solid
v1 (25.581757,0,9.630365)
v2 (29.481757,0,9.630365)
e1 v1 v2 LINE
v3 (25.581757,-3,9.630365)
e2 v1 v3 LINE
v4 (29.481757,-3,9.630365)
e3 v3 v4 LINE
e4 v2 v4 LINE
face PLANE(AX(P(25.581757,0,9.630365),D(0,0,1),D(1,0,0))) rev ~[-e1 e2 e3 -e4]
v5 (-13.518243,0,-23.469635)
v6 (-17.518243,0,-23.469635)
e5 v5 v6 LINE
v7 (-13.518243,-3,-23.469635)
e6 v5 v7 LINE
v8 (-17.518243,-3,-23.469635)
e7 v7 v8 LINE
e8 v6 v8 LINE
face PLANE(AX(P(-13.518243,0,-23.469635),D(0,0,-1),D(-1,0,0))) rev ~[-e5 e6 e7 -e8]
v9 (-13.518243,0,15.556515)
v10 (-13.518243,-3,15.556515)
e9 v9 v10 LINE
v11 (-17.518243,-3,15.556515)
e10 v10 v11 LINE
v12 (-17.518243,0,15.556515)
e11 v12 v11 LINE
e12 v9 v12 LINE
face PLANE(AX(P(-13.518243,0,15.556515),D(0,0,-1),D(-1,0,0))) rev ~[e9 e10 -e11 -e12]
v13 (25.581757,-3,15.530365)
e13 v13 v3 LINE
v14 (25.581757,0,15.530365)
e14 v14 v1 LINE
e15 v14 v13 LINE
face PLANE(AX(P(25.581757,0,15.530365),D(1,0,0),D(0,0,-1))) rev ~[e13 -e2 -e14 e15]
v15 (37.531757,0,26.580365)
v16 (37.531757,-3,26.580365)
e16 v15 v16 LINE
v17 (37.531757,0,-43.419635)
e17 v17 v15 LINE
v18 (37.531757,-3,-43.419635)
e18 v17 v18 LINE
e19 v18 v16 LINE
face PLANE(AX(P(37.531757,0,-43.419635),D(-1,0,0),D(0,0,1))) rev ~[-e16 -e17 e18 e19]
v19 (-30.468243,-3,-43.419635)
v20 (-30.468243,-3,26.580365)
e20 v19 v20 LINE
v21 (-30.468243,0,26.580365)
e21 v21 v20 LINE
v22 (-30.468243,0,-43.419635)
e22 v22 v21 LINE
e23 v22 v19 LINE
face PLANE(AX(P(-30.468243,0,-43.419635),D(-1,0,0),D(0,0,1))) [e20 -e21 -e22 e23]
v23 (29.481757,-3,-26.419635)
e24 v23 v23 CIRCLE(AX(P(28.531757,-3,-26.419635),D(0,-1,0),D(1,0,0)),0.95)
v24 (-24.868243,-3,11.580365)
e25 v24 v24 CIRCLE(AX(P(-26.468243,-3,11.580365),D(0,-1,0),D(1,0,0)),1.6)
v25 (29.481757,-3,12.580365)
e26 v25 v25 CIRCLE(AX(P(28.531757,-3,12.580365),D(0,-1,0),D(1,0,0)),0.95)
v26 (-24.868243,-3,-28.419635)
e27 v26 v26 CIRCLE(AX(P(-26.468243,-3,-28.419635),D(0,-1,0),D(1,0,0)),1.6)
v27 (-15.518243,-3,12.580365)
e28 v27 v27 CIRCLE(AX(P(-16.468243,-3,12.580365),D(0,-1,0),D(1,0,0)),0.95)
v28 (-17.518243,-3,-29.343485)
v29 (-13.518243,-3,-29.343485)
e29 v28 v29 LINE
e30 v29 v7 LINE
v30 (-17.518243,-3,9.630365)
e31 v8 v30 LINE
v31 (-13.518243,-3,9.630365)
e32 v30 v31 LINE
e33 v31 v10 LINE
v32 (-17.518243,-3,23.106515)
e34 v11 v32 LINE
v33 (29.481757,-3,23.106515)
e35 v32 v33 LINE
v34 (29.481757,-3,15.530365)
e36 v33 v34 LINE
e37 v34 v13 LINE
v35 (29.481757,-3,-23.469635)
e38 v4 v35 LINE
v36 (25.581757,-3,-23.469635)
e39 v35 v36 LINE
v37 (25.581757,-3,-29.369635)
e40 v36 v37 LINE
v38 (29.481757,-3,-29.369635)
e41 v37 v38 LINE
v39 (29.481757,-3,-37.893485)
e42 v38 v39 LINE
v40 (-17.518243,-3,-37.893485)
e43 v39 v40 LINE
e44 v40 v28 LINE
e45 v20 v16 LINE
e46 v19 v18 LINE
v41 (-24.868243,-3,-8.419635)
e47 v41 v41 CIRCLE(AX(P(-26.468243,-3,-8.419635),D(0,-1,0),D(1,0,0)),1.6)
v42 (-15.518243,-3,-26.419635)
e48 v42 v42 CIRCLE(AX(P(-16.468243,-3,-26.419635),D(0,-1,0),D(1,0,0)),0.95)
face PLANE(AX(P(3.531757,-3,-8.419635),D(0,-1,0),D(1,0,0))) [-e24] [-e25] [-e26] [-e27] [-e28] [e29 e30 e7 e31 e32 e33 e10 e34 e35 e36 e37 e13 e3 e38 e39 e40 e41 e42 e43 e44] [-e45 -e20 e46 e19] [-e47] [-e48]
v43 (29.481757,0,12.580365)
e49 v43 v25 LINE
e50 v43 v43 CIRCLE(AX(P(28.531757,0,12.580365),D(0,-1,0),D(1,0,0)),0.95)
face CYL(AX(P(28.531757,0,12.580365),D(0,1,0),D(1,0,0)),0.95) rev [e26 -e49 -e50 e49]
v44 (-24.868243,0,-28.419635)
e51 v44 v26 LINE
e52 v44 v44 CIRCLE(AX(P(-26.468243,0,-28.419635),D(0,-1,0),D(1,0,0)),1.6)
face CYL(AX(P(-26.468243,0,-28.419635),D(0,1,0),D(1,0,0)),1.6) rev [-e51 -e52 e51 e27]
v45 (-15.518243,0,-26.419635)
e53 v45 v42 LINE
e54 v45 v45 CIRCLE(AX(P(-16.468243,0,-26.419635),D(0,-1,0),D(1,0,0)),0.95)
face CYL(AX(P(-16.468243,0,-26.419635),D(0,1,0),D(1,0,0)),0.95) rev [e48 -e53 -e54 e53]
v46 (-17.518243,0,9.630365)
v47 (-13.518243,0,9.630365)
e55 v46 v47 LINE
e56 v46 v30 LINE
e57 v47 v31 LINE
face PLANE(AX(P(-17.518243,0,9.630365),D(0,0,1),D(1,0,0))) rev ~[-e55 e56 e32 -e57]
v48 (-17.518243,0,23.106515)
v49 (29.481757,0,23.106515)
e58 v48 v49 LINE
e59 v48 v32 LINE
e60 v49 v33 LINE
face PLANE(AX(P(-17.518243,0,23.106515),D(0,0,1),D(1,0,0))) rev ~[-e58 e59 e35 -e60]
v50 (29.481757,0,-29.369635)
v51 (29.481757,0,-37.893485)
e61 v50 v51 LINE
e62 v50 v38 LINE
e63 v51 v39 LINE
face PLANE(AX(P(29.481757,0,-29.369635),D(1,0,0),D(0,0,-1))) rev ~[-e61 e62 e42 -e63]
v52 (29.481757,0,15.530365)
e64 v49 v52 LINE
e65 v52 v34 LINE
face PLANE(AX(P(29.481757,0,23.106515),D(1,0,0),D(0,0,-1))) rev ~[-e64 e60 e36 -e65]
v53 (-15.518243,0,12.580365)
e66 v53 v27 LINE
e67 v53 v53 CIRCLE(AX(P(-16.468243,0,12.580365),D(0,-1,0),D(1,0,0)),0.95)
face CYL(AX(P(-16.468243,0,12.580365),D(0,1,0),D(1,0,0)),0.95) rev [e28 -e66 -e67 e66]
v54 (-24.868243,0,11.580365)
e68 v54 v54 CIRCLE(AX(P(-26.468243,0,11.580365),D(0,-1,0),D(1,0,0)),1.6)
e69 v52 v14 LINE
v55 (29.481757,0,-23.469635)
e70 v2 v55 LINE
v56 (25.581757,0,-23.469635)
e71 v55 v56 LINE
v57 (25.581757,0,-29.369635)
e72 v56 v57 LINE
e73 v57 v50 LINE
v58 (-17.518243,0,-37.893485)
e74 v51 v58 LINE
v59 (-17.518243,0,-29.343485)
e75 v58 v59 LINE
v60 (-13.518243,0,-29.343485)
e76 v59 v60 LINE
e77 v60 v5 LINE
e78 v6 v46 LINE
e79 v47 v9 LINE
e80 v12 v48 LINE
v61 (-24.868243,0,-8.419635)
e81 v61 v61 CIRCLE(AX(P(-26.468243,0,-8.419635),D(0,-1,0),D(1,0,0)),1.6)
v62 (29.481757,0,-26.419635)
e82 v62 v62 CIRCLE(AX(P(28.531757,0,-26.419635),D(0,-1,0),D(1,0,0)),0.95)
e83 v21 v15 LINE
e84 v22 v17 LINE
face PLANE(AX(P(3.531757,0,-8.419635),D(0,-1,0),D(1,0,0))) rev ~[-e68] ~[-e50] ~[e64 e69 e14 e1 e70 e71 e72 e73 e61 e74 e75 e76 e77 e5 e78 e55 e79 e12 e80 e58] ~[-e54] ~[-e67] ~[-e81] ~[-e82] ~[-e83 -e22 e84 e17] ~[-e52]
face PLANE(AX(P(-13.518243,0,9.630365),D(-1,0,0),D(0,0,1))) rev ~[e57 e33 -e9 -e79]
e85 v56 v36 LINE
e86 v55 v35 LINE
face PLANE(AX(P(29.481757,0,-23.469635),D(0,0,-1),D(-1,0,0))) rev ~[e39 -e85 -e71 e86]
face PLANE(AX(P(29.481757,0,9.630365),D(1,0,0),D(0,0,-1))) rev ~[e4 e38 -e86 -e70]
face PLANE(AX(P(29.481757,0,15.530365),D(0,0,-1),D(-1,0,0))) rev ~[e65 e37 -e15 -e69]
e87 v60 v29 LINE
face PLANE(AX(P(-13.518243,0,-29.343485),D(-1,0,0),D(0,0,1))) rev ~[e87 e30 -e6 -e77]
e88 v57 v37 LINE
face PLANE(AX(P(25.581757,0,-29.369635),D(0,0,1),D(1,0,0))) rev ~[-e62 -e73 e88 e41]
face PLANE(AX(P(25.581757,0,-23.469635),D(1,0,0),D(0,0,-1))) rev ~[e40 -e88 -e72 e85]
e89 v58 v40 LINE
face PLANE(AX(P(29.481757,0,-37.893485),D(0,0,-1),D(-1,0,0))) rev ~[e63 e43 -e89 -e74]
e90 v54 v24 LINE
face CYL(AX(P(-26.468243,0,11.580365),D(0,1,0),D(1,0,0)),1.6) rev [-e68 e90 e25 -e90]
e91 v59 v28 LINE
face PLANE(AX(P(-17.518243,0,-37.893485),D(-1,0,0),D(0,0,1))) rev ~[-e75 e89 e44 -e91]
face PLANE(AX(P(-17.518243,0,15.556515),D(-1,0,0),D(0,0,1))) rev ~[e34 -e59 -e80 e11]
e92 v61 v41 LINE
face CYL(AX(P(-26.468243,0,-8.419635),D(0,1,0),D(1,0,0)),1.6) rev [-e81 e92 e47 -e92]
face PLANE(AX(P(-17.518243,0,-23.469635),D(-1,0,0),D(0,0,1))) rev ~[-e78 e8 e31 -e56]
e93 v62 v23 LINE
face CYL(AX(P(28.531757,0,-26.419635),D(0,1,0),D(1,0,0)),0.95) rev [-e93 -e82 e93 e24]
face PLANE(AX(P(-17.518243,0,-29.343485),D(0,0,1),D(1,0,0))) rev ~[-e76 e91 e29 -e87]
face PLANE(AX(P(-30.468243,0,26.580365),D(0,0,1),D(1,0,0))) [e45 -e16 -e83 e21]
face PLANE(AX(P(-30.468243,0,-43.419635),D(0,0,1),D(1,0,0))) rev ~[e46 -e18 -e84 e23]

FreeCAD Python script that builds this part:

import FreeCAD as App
import Part
import Sketcher

doc = App.newDocument("Part")
body = doc.addObject("PartDesign::Body", "Body")

sketch1 = body.newObject("Sketcher::SketchObject", "Sketch")
sketch1.AttachmentSupport = (doc.getObject("XZ_Plane"), [""])
sketch1.MapMode = "FlatFace"
sketch1.addGeometry([
    Part.LineSegment(App.Vector(-30.5, 26.6, 0), App.Vector(-30.5, -43.4, 0)),
    Part.LineSegment(App.Vector(-30.5, -43.4, 0), App.Vector(37.5, -43.4, 0)),
    Part.LineSegment(App.Vector(37.5, -43.4, 0), App.Vector(37.5, 26.6, 0)),
    Part.LineSegment(App.Vector(37.5, 26.6, 0), App.Vector(-30.5, 26.6, 0)),
    Part.Circle(App.Vector(-26.5, -28.4, 0), App.Vector(0, 0, 1), 1.6),
    Part.Circle(App.Vector(-16.5, -26.4, 0), App.Vector(0, 0, 1), 0.9),
    Part.Circle(App.Vector(-26.5, -8.4, 0), App.Vector(0, 0, 1), 1.6),
    Part.Circle(App.Vector(28.5, -26.4, 0), App.Vector(0, 0, 1), 0.9),
    Part.Circle(App.Vector(-26.5, 11.6, 0), App.Vector(0, 0, 1), 1.6),
    Part.Circle(App.Vector(-16.5, 12.6, 0), App.Vector(0, 0, 1), 0.9),
    Part.LineSegment(App.Vector(-13.5, 15.6, 0), App.Vector(-17.5, 15.6, 0)),
    Part.LineSegment(App.Vector(-17.5, 15.6, 0), App.Vector(-17.5, 23.1, 0)),
    Part.LineSegment(App.Vector(-17.5, 23.1, 0), App.Vector(29.5, 23.1, 0)),
    Part.LineSegment(App.Vector(29.5, 23.1, 0), App.Vector(29.5, 15.5, 0)),
    Part.LineSegment(App.Vector(29.5, 15.5, 0), App.Vector(25.6, 15.5, 0)),
    Part.LineSegment(App.Vector(25.6, 15.5, 0), App.Vector(25.6, 9.6, 0)),
    Part.LineSegment(App.Vector(25.6, 9.6, 0), App.Vector(29.5, 9.6, 0)),
    Part.LineSegment(App.Vector(29.5, 9.6, 0), App.Vector(29.5, -23.5, 0)),
    Part.LineSegment(App.Vector(29.5, -23.5, 0), App.Vector(25.6, -23.5, 0)),
    Part.LineSegment(App.Vector(25.6, -23.5, 0), App.Vector(25.6, -29.4, 0)),
    Part.LineSegment(App.Vector(25.6, -29.4, 0), App.Vector(29.5, -29.4, 0)),
    Part.LineSegment(App.Vector(29.5, -29.4, 0), App.Vector(29.5, -37.9, 0)),
    Part.LineSegment(App.Vector(29.5, -37.9, 0), App.Vector(-17.5, -37.9, 0)),
    Part.LineSegment(App.Vector(-17.5, -37.9, 0), App.Vector(-17.5, -29.3, 0)),
    Part.LineSegment(App.Vector(-17.5, -29.3, 0), App.Vector(-13.5, -29.3, 0)),
    Part.LineSegment(App.Vector(-13.5, -29.3, 0), App.Vector(-13.5, -23.5, 0)),
    Part.LineSegment(App.Vector(-13.5, -23.5, 0), App.Vector(-17.5, -23.5, 0)),
    Part.LineSegment(App.Vector(-17.5, -23.5, 0), App.Vector(-17.5, 9.6, 0)),
    Part.LineSegment(App.Vector(-17.5, 9.6, 0), App.Vector(-13.5, 9.6, 0)),
    Part.LineSegment(App.Vector(-13.5, 9.6, 0), App.Vector(-13.5, 15.6, 0)),
    Part.Circle(App.Vector(28.5, 12.6, 0), App.Vector(0, 0, 1), 0.9),
], False)
sketch1.addConstraint([
    Sketcher.Constraint("Coincident", 0, 2, 1, 1),
    Sketcher.Constraint("Coincident", 1, 2, 2, 1),
    Sketcher.Constraint("Coincident", 2, 2, 3, 1),
    Sketcher.Constraint("Coincident", 3, 2, 0, 1),
    Sketcher.Constraint("Coincident", 10, 2, 11, 1),
    Sketcher.Constraint("Coincident", 11, 2, 12, 1),
    Sketcher.Constraint("Coincident", 12, 2, 13, 1),
    Sketcher.Constraint("Coincident", 13, 2, 14, 1),
    Sketcher.Constraint("Coincident", 14, 2, 15, 1),
    Sketcher.Constraint("Coincident", 15, 2, 16, 1),
    Sketcher.Constraint("Coincident", 16, 2, 17, 1),
    Sketcher.Constraint("Coincident", 17, 2, 18, 1),
    Sketcher.Constraint("Coincident", 18, 2, 19, 1),
    Sketcher.Constraint("Coincident", 19, 2, 20, 1),
    Sketcher.Constraint("Coincident", 20, 2, 21, 1),
    Sketcher.Constraint("Coincident", 21, 2, 22, 1),
    Sketcher.Constraint("Coincident", 22, 2, 23, 1),
    Sketcher.Constraint("Coincident", 23, 2, 24, 1),
    Sketcher.Constraint("Coincident", 24, 2, 25, 1),
    Sketcher.Constraint("Coincident", 25, 2, 26, 1),
    Sketcher.Constraint("Coincident", 26, 2, 27, 1),
    Sketcher.Constraint("Coincident", 27, 2, 28, 1),
    Sketcher.Constraint("Coincident", 28, 2, 29, 1),
    Sketcher.Constraint("Coincident", 29, 2, 10, 1),
    Sketcher.Constraint("Vertical", 0),
    Sketcher.Constraint("Horizontal", 1),
    Sketcher.Constraint("Vertical", 2),
    Sketcher.Constraint("Horizontal", 3),
    Sketcher.Constraint("Horizontal", 10),
    Sketcher.Constraint("Vertical", 11),
    Sketcher.Constraint("Horizontal", 12),
    Sketcher.Constraint("Vertical", 13),
    Sketcher.Constraint("Horizontal", 14),
    Sketcher.Constraint("Vertical", 15),
    Sketcher.Constraint("Horizontal", 16),
    Sketcher.Constraint("Vertical", 17),
    Sketcher.Constraint("Horizontal", 18),
    Sketcher.Constraint("Vertical", 19),
    Sketcher.Constraint("Horizontal", 20),
    Sketcher.Constraint("Vertical", 21),
    Sketcher.Constraint("Horizontal", 22),
    Sketcher.Constraint("Vertical", 23),
    Sketcher.Constraint("Horizontal", 24),
    Sketcher.Constraint("Vertical", 25),
    Sketcher.Constraint("Horizontal", 26),
    Sketcher.Constraint("Vertical", 27),
    Sketcher.Constraint("Horizontal", 28),
    Sketcher.Constraint("Vertical", 29),
    Sketcher.Constraint("Equal", 4, 6),
    Sketcher.Constraint("Equal", 5, 7),
    Sketcher.Constraint("Equal", 6, 8),
    Sketcher.Constraint("Equal", 7, 9),
    Sketcher.Constraint("Equal", 9, 30),
    Sketcher.Constraint("Horizontal", 5, 3, 7, 3),
    Sketcher.Constraint("Horizontal", 9, 3, 30, 3),
    Sketcher.Constraint("Horizontal", 18, 2, 25, 2),
    Sketcher.Constraint("Horizontal", 16, 2, 27, 2),
    Sketcher.Constraint("Vertical", 4, 3, 6, 3),
    Sketcher.Constraint("Vertical", 6, 3, 8, 3),
    Sketcher.Constraint("Vertical", 5, 3, 9, 3),
    Sketcher.Constraint("Vertical", 7, 3, 30, 3),
    Sketcher.Constraint("Vertical", 13, 2, 16, 2),
    Sketcher.Constraint("Vertical", 15, 2, 18, 2),
    Sketcher.Constraint("Vertical", 17, 2, 20, 2),
    Sketcher.Constraint("Vertical", 11, 2, 22, 2),
    Sketcher.Constraint("Vertical", 23, 2, 26, 2),
    Sketcher.Constraint("Vertical", 25, 2, 28, 2),
    Sketcher.Constraint("Equal", 15, 19),
    Sketcher.Constraint("Diameter", 4, 3.2),
    Sketcher.Constraint("Diameter", 5, 1.9),
    Sketcher.Constraint("DistanceX", 1, 1, 1, 2, 68.0),
    Sketcher.Constraint("DistanceX", 10, 2, 10, 1, 4.0),
    Sketcher.Constraint("DistanceX", 12, 1, 12, 2, 47.0),
    Sketcher.Constraint("DistanceY", 0, 2, 0, 1, 70.0),
    Sketcher.Constraint("DistanceX", 14, 2, 14, 1, 3.9),
    Sketcher.Constraint("DistanceY", 15, 2, 15, 1, 5.9),
    Sketcher.Constraint("DistanceY", 17, 2, 17, 1, 33.1),
    Sketcher.Constraint("DistanceX", 4, 3, 5, 3, 10.0),
    Sketcher.Constraint("DistanceY", 4, 3, 5, 3, 2.0),
    Sketcher.Constraint("DistanceY", 4, 3, 6, 3, 20.0),
    Sketcher.Constraint("DistanceX", 5, 3, 7, 3, 45.0),
    Sketcher.Constraint("DistanceY", 6, 3, 8, 3, 20.0),
    Sketcher.Constraint("DistanceY", 8, 3, 9, 3, 1.0),
    Sketcher.Constraint("DistanceX", 0, 2, 4, 3, 4.0),
    Sketcher.Constraint("DistanceY", 0, 2, 4, 3, 15.0),
    Sketcher.Constraint("DistanceY", 11, 1, 11, 2, 7.55),
    Sketcher.Constraint("DistanceY", 23, 1, 23, 2, 8.55),
    Sketcher.Constraint("DistanceX", 10, 2, 9, 3, 1.05),
    Sketcher.Constraint("DistanceY", 30, 3, 13, 2, 2.95),
    Sketcher.Constraint("DistanceY", 13, 2, 13, 1, 7.57615),
    Sketcher.Constraint("DistanceY", 21, 2, 21, 1, 8.52385),
    Sketcher.Constraint("DistanceX", 4, 3, -1, 1, 26.468243),
    Sketcher.Constraint("DistanceY", 4, 3, -1, 1, 28.419635),
])
pad1 = body.newObject("PartDesign::Pad", "Pad")
pad1.Profile = sketch1
pad1.Length = 3

doc.recompute()
